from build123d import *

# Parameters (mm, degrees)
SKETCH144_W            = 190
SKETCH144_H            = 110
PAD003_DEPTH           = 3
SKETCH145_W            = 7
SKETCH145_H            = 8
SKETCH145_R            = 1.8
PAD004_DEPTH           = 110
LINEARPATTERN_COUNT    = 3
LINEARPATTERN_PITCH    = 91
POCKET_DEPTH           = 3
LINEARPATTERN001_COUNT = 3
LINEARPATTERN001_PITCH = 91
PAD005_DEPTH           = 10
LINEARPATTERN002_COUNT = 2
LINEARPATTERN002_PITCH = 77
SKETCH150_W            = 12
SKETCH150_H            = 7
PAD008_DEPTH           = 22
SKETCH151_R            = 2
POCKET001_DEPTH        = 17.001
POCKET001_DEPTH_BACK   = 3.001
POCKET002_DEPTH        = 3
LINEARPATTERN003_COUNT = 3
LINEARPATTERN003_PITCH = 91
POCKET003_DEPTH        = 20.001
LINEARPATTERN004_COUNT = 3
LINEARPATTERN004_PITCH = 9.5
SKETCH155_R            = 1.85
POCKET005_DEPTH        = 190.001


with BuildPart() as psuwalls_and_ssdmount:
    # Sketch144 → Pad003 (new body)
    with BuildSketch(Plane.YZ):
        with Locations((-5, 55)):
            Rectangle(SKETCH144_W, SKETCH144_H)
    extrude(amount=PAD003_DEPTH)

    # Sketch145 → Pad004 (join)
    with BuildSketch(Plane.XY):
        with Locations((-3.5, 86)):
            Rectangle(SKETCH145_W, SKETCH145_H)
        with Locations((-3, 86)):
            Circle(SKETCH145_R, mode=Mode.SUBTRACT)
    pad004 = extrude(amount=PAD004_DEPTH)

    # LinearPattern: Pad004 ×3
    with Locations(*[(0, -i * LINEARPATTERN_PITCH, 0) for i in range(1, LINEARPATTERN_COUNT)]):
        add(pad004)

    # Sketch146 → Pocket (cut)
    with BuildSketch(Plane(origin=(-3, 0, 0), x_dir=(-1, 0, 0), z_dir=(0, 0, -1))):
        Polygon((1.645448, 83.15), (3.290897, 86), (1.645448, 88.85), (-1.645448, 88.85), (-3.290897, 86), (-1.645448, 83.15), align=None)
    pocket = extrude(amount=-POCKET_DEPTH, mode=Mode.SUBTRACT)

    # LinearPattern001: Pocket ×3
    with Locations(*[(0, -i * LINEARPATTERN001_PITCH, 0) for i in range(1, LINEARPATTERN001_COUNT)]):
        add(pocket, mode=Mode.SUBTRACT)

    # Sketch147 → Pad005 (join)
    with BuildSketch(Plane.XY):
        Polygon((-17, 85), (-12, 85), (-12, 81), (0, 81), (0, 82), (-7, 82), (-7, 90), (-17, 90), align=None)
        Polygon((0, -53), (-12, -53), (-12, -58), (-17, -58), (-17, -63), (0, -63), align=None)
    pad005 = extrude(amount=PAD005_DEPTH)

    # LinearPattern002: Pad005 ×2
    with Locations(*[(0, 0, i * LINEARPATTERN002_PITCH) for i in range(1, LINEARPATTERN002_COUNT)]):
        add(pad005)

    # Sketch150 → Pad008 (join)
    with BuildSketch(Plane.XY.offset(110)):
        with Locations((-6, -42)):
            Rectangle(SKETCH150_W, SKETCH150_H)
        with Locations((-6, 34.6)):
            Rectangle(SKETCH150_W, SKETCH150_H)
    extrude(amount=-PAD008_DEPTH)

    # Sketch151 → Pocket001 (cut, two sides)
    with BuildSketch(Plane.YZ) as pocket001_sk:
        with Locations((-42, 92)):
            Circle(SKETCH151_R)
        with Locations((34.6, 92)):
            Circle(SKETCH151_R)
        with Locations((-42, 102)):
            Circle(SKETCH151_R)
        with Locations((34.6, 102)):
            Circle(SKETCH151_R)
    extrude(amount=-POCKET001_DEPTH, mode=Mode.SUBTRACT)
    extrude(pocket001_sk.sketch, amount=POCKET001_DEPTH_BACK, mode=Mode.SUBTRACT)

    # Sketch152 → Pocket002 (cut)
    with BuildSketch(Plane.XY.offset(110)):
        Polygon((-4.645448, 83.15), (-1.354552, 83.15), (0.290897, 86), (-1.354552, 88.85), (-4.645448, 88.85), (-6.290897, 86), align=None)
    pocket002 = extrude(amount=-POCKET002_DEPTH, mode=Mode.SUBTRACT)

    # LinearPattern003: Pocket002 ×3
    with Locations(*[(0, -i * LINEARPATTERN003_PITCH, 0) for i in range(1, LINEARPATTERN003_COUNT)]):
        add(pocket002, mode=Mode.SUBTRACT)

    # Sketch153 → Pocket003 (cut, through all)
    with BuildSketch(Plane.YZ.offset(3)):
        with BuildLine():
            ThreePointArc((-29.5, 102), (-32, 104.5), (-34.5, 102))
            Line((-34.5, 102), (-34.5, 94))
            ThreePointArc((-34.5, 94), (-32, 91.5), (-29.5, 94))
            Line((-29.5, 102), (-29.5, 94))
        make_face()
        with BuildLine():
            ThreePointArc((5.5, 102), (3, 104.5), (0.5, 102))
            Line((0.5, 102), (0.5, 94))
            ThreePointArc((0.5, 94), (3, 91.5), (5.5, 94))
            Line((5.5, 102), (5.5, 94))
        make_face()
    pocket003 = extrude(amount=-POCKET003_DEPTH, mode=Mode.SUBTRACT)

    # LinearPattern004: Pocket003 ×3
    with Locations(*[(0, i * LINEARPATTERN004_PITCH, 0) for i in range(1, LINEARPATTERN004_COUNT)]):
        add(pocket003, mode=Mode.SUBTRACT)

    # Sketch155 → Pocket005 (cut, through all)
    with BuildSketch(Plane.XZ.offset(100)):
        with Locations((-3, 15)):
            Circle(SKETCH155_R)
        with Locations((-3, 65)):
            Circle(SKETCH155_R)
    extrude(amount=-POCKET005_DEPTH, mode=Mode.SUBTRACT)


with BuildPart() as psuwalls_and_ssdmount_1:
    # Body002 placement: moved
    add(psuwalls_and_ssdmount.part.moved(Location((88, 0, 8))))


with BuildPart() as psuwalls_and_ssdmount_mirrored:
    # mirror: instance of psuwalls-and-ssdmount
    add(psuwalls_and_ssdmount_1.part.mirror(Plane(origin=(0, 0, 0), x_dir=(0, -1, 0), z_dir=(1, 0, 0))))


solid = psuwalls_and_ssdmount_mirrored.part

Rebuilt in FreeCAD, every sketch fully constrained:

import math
import FreeCAD as App
import Part
import Sketcher

V = App.Vector
Q = App.Units.Quantity


def add_polygon(sketch, points):
    """Adds a closed chain of lines whose ends are joined by coincident constraints."""
    first, n = sketch.GeometryCount, len(points)
    for a, b in zip(points, points[1:] + points[:1]):
        sketch.addGeometry(Part.LineSegment(App.Vector(*a, 0), App.Vector(*b, 0)), False)
    for i in range(n):
        sketch.addConstraint(Sketcher.Constraint("Coincident", first + i, 2, first + (i + 1) % n, 1))

doc = App.newDocument("Part")
body = doc.addObject("PartDesign::Body", "Body")

# Sketch on YZ plane
sketch1 = body.newObject("Sketcher::SketchObject", "Sketch")
sketch1.AttachmentSupport = (doc.getObject("YZ_Plane"), [""])
sketch1.MapMode = "FlatFace"
add_polygon(sketch1, [(-100, 110), (-100, 0), (90, 0), (90, 110)])  # lines 0-3
sketch1.addConstraint([
    Sketcher.Constraint("Vertical", 0),
    Sketcher.Constraint("Horizontal", 1),
    Sketcher.Constraint("Vertical", 2),
    Sketcher.Constraint("Horizontal", 3),
    Sketcher.Constraint("PointOnObject", 0, 2, -1),
    Sketcher.Constraint("DistanceX", 1, 1, 1, 2, 190.0),
    Sketcher.Constraint("DistanceY", 0, 2, 0, 1, 110.0),
    Sketcher.Constraint("DistanceX", 0, 2, -1, 1, 100.0),
])
pad1 = body.newObject("PartDesign::Pad", "Pad")
pad1.Profile = sketch1
pad1.Length = 3

# Sketch on XY plane
sketch2 = body.newObject("Sketcher::SketchObject", "Sketch001")
sketch2.AttachmentSupport = (doc.getObject("XY_Plane"), [""])
sketch2.MapMode = "FlatFace"
add_polygon(sketch2, [(-7, 90), (-7, 82), (0, 82), (0, 90)])  # lines 0-3
sketch2.addGeometry(Part.Circle(V(-3, 86, 0), V(0, 0, 1), 1.8), False)  # 4
sketch2.addConstraint([
    Sketcher.Constraint("Vertical", 0),
    Sketcher.Constraint("Horizontal", 1),
    Sketcher.Constraint("Vertical", 2),
    Sketcher.Constraint("Horizontal", 3),
    Sketcher.Constraint("PointOnObject", 1, 2, -2),
    Sketcher.Constraint("Diameter", 4, 3.6),
    Sketcher.Constraint("DistanceX", 1, 1, 1, 2, 7.0),
    Sketcher.Constraint("DistanceY", 0, 2, 0, 1, 8.0),
    Sketcher.Constraint("DistanceX", 4, 3, -1, 1, 3.0),
    Sketcher.Constraint("DistanceY", -1, 1, 4, 3, 86.0),
    Sketcher.Constraint("DistanceY", -1, 1, 0, 2, 82.0),
])
pad2 = body.newObject("PartDesign::Pad", "Pad001")
pad2.Profile = sketch2
pad2.Length = 110
doc.recompute()

linearpattern = body.newObject("PartDesign::LinearPattern", "LinearPattern")
linearpattern.Originals = [pad2]
linearpattern.Direction = (doc.getObject("Y_Axis"), [""])
linearpattern.Mode = "offset"
linearpattern.Offset = 91
linearpattern.Occurrences = 3
linearpattern.Reversed = True
body.Tip = linearpattern

# Sketch on XY plane
sketch3 = body.newObject("Sketcher::SketchObject", "Sketch002")
sketch3.AttachmentSupport = (doc.getObject("XY_Plane"), [""])
sketch3.MapMode = "FlatFace"
add_polygon(sketch3, [(-4.6, 83.2), (-6.3, 86), (-4.6, 88.8), (-1.4, 88.8), (0.3, 86), (-1.4, 83.2)])  # lines 0-5
sketch3.addConstraint([
    Sketcher.Constraint("Horizontal", 2),
    Sketcher.Constraint("Horizontal", 5),
    Sketcher.Constraint("Parallel", 0, 3),
    Sketcher.Constraint("Parallel", 1, 4),
    Sketcher.Constraint("Horizontal", 0, 2, 3, 2),
    Sketcher.Constraint("Vertical", 2, 2, 4, 2),
    Sketcher.Constraint("Vertical", 1, 2, 5, 2),
    Sketcher.Constraint("Angle", 0, Q("120.000011 deg")),
    Sketcher.Constraint("DistanceY", -1, 1, 0, 2, 86.0),
    Sketcher.Constraint("DistanceY", 4, 2, 2, 2, 5.7),
    Sketcher.Constraint("DistanceX", 2, 1, 2, 2, 3.290896),
    Sketcher.Constraint("DistanceX", 0, 2, -1, 1, 6.290897),
])
pocket1 = body.newObject("PartDesign::Pocket", "Pocket")
pocket1.Profile = sketch3
pocket1.Length = 3
pocket1.Reversed = True
doc.recompute()

linearpattern2 = body.newObject("PartDesign::LinearPattern", "LinearPattern001")
linearpattern2.Originals = [pocket1]
linearpattern2.Direction = (doc.getObject("Y_Axis"), [""])
linearpattern2.Mode = "offset"
linearpattern2.Offset = 91
linearpattern2.Occurrences = 3
linearpattern2.Reversed = True
body.Tip = linearpattern2

# Sketch on XY plane
sketch4 = body.newObject("Sketcher::SketchObject", "Sketch003")
sketch4.AttachmentSupport = (doc.getObject("XY_Plane"), [""])
sketch4.MapMode = "FlatFace"
add_polygon(sketch4, [(-17, 85), (-12, 85), (-12, 81), (0, 81), (0, 82), (-7, 82), (-7, 90), (-17, 90)])  # lines 0-7
add_polygon(sketch4, [(0, -53), (-12, -53), (-12, -58), (-17, -58), (-17, -63), (0, -63)])  # lines 8-13
sketch4.addConstraint([
    Sketcher.Constraint("Horizontal", 0),
    Sketcher.Constraint("Vertical", 1),
    Sketcher.Constraint("Horizontal", 2),
    Sketcher.Constraint("Vertical", 3),
    Sketcher.Constraint("Horizontal", 4),
    Sketcher.Constraint("Vertical", 5),
    Sketcher.Constraint("Horizontal", 6),
    Sketcher.Constraint("Vertical", 7),
    Sketcher.Constraint("Horizontal", 8),
    Sketcher.Constraint("Vertical", 9),
    Sketcher.Constraint("Horizontal", 10),
    Sketcher.Constraint("Vertical", 11),
    Sketcher.Constraint("Horizontal", 12),
    Sketcher.Constraint("Vertical", 13),
    Sketcher.Constraint("PointOnObject", 2, 2, -2),
    Sketcher.Constraint("PointOnObject", 12, 2, -2),
    Sketcher.Constraint("Vertical", 1, 2, 8, 2),
    Sketcher.Constraint("Vertical", 7, 2, 10, 2),
    Sketcher.Constraint("Equal", 10, 7),
    Sketcher.Constraint("Equal", 7, 9),
    Sketcher.Constraint("Equal", 9, 11),
    Sketcher.Constraint("Equal", 6, 13),
    Sketcher.Constraint("DistanceX", 0, 1, 0, 2, 5.0),
    Sketcher.Constraint("DistanceX", 2, 1, 2, 2, 12.0),
    Sketcher.Constraint("DistanceY", 1, 2, 1, 1, 4.0),
    Sketcher.Constraint("DistanceY", 3, 1, 3, 2, 1.0),
    Sketcher.Constraint("DistanceY", -1, 1, 0, 2, 85.0),
    Sketcher.Constraint("DistanceY", 8, 2, -1, 1, 53.0),
])
pad3 = body.newObject("PartDesign::Pad", "Pad002")
pad3.Profile = sketch4
pad3.Length = 10
doc.recompute()

linearpattern3 = body.newObject("PartDesign::LinearPattern", "LinearPattern002")
linearpattern3.Originals = [pad3]
linearpattern3.Direction = (doc.getObject("Z_Axis"), [""])
linearpattern3.Mode = "offset"
linearpattern3.Offset = 77
linearpattern3.Occurrences = 2
body.Tip = linearpattern3

# Sketch on XY plane
sketch5 = body.newObject("Sketcher::SketchObject", "Sketch004")
sketch5.AttachmentSupport = (doc.getObject("XY_Plane"), [""])
sketch5.MapMode = "FlatFace"
sketch5.AttachmentOffset = App.Placement(V(0, 0, 110), App.Rotation())
add_polygon(sketch5, [(-12, -38), (-12, -46), (0, -46), (0, -38)])  # lines 0-3
add_polygon(sketch5, [(-12, 38), (-12, 31), (0, 31), (0, 38)])  # lines 4-7
sketch5.addConstraint([
    Sketcher.Constraint("Vertical", 0),
    Sketcher.Constraint("Horizontal", 1),
    Sketcher.Constraint("Vertical", 2),
    Sketcher.Constraint("Horizontal", 3),
    Sketcher.Constraint("Vertical", 4),
    Sketcher.Constraint("Horizontal", 5),
    Sketcher.Constraint("Vertical", 6),
    Sketcher.Constraint("Horizontal", 7),
    Sketcher.Constraint("PointOnObject", 1, 2, -2),
    Sketcher.Constraint("PointOnObject", 5, 2, -2),
    Sketcher.Constraint("Vertical", 3, 2, 4, 2),
    Sketcher.Constraint("Equal", 2, 4),
    Sketcher.Constraint("DistanceX", 1, 1, 1, 2, 12.0),
    Sketcher.Constraint("DistanceY", 0, 2, 0, 1, 7.0),
    Sketcher.Constraint("DistanceY", 0, 2, -1, 1, 45.5),
    Sketcher.Constraint("DistanceY", -1, 1, 4, 2, 31.1),
])
pad4 = body.newObject("PartDesign::Pad", "Pad003")
pad4.Profile = sketch5
pad4.Length = 22
pad4.Reversed = True

# Sketch on YZ plane
sketch6 = body.newObject("Sketcher::SketchObject", "Sketch005")
sketch6.AttachmentSupport = (doc.getObject("YZ_Plane"), [""])
sketch6.MapMode = "FlatFace"
sketch6.addGeometry([
    Part.Circle(V(-42, 92, 0), V(0, 0, 1), 2),
    Part.Circle(V(34.6, 92, 0), V(0, 0, 1), 2),
    Part.Circle(V(-42, 102, 0), V(0, 0, 1), 2),
    Part.Circle(V(34.6, 102, 0), V(0, 0, 1), 2),
], False)
sketch6.addConstraint([
    Sketcher.Constraint("Equal", 0, 1),
    Sketcher.Constraint("Equal", 1, 2),
    Sketcher.Constraint("Equal", 2, 3),
    Sketcher.Constraint("Horizontal", 0, 3, 1, 3),
    Sketcher.Constraint("Horizontal", 2, 3, 3, 3),
    Sketcher.Constraint("Vertical", 0, 3, 2, 3),
    Sketcher.Constraint("Vertical", 1, 3, 3, 3),
    Sketcher.Constraint("Diameter", 0, 4.0),
    Sketcher.Constraint("DistanceX", 0, 3, -1, 1, 42.0),
    Sketcher.Constraint("DistanceY", -1, 1, 0, 3, 92.0),
    Sketcher.Constraint("DistanceY", -1, 1, 2, 3, 102.0),
    Sketcher.Constraint("DistanceX", -1, 1, 1, 3, 34.6),
])
pocket2 = body.newObject("PartDesign::Pocket", "Pocket001")
pocket2.Profile = sketch6
pocket2.Type = "ThroughAll"
pocket2.Midplane = True

# Sketch on XY plane
sketch7 = body.newObject("Sketcher::SketchObject", "Sketch006")
sketch7.AttachmentSupport = (doc.getObject("XY_Plane"), [""])
sketch7.MapMode = "FlatFace"
sketch7.AttachmentOffset = App.Placement(V(0, 0, 110), App.Rotation())
add_polygon(sketch7, [(-4.6, 83.2), (-1.4, 83.2), (0.3, 86), (-1.4, 88.8), (-4.6, 88.8), (-6.3, 86)])  # lines 0-5
sketch7.addConstraint([
    Sketcher.Constraint("Horizontal", 0),
    Sketcher.Constraint("Horizontal", 3),
    Sketcher.Constraint("Parallel", 1, 4),
    Sketcher.Constraint("Parallel", 2, 5),
    Sketcher.Constraint("Horizontal", 1, 2, 4, 2),
    Sketcher.Constraint("Vertical", 0, 2, 2, 2),
    Sketcher.Constraint("Vertical", 3, 2, 5, 2),
    Sketcher.Constraint("Angle", 1, Q("59.999989 deg")),
    Sketcher.Constraint("DistanceY", -1, 1, 1, 2, 86.0),
    Sketcher.Constraint("DistanceY", 0, 2, 2, 2, 5.7),
    Sketcher.Constraint("DistanceX", 0, 1, 0, 2, 3.290896),
    Sketcher.Constraint("DistanceX", 0, 2, -1, 1, 1.354552),
])
pocket3 = body.newObject("PartDesign::Pocket", "Pocket002")
pocket3.Profile = sketch7
pocket3.Length = 3
doc.recompute()

linearpattern4 = body.newObject("PartDesign::LinearPattern", "LinearPattern003")
linearpattern4.Originals = [pocket3]
linearpattern4.Direction = (doc.getObject("Y_Axis"), [""])
linearpattern4.Mode = "offset"
linearpattern4.Offset = 91
linearpattern4.Occurrences = 3
linearpattern4.Reversed = True
body.Tip = linearpattern4

# Sketch on YZ plane
sketch8 = body.newObject("Sketcher::SketchObject", "Sketch007")
sketch8.AttachmentSupport = (doc.getObject("YZ_Plane"), [""])
sketch8.MapMode = "FlatFace"
sketch8.AttachmentOffset = App.Placement(V(0, 0, 3), App.Rotation())
sketch8.addGeometry([
    Part.ArcOfCircle(Part.Circle(V(-32, 102, 0), V(0, 0, 1), 2.5), math.radians(0), math.radians(180)),  # 0
    Part.LineSegment(V(-34.5, 102, 0), V(-34.5, 94, 0)),  # 1
    Part.ArcOfCircle(Part.Circle(V(-32, 94, 0), V(0, 0, 1), 2.5), math.radians(180), math.radians(360)),  # 2
    Part.LineSegment(V(-29.5, 94, 0), V(-29.5, 102, 0)),  # 3
    Part.ArcOfCircle(Part.Circle(V(3, 102, 0), V(0, 0, 1), 2.5), math.radians(0), math.radians(180)),  # 4
    Part.LineSegment(V(0.5, 102, 0), V(0.5, 94, 0)),  # 5
    Part.ArcOfCircle(Part.Circle(V(3, 94, 0), V(0, 0, 1), 2.5), math.radians(180), math.radians(360)),  # 6
    Part.LineSegment(V(5.5, 94, 0), V(5.5, 102, 0)),  # 7
], False)
sketch8.addConstraint([
    Sketcher.Constraint("Tangent", 0, 2, 1, 1),
    Sketcher.Constraint("Tangent", 1, 2, 2, 1),
    Sketcher.Constraint("Tangent", 2, 2, 3, 1),
    Sketcher.Constraint("Tangent", 3, 2, 0, 1),
    Sketcher.Constraint("Tangent", 4, 2, 5, 1),
    Sketcher.Constraint("Tangent", 5, 2, 6, 1),
    Sketcher.Constraint("Tangent", 6, 2, 7, 1),
    Sketcher.Constraint("Tangent", 7, 2, 4, 1),
    Sketcher.Constraint("Vertical", 1),
    Sketcher.Constraint("Vertical", 3),
    Sketcher.Constraint("Vertical", 5),
    Sketcher.Constraint("Vertical", 7),
    Sketcher.Constraint("Equal", 2, 4),
    Sketcher.Constraint("Horizontal", 0, 3, 4, 3),
    Sketcher.Constraint("Horizontal", 2, 3, 6, 3),
    Sketcher.Constraint("Radius", 0, 2.5),
    Sketcher.Constraint("DistanceY", 1, 2, 1, 1, 8.0),
    Sketcher.Constraint("DistanceX", 0, 3, -1, 1, 32.0),
    Sketcher.Constraint("DistanceY", -1, 1, 0, 3, 102.0),
    Sketcher.Constraint("DistanceX", -1, 1, 4, 3, 3.0),
])
pocket4 = body.newObject("PartDesign::Pocket", "Pocket003")
pocket4.Profile = sketch8
pocket4.Type = "ThroughAll"
doc.recompute()

linearpattern5 = body.newObject("PartDesign::LinearPattern", "LinearPattern004")
linearpattern5.Originals = [pocket4]
linearpattern5.Direction = (doc.getObject("Y_Axis"), [""])
linearpattern5.Mode = "offset"
linearpattern5.Offset = 9.5
linearpattern5.Occurrences = 3
body.Tip = linearpattern5

# Sketch on XZ plane
sketch9 = body.newObject("Sketcher::SketchObject", "Sketch008")
sketch9.AttachmentSupport = (doc.getObject("XZ_Plane"), [""])
sketch9.MapMode = "FlatFace"
sketch9.AttachmentOffset = App.Placement(V(0, 0, 100), App.Rotation())
sketch9.addGeometry([
    Part.Circle(V(-3, 15, 0), V(0, 0, 1), 1.9),
    Part.Circle(V(-3, 65, 0), V(0, 0, 1), 1.9),
], False)
sketch9.addConstraint([
    Sketcher.Constraint("Equal", 0, 1),
    Sketcher.Constraint("Vertical", 0, 3, 1, 3),
    Sketcher.Constraint("Diameter", 0, 3.7),
    Sketcher.Constraint("DistanceX", 0, 3, -1, 1, 3.0),
    Sketcher.Constraint("DistanceY", -1, 1, 0, 3, 15.0),
    Sketcher.Constraint("DistanceY", -1, 1, 1, 3, 65.0),
])
pocket5 = body.newObject("PartDesign::Pocket", "Pocket004")
pocket5.Profile = sketch9
pocket5.Type = "ThroughAll"
body2 = doc.addObject("PartDesign::Body", "Body001")
doc.recompute()

body.Placement = App.Placement(V(88, 0, 8), App.Rotation(V(0, 0, 1), 0))
boolean = body2.newObject("PartDesign::Boolean", "Boolean")
boolean.Type = "Fuse"
boolean.addObjects([body])
body3 = doc.addObject("PartDesign::Body", "Body002")
doc.recompute()

mirroring = doc.addObject("Part::Mirroring", "Mirroring")
mirroring.Source = body2
mirroring.Base = V(0, 0, 0)
mirroring.Normal = V(1, 0, 0)
body3.BaseFeature = mirroring
doc.recompute()
body2.Visibility = False
mirroring.Visibility = False

doc.recompute()
